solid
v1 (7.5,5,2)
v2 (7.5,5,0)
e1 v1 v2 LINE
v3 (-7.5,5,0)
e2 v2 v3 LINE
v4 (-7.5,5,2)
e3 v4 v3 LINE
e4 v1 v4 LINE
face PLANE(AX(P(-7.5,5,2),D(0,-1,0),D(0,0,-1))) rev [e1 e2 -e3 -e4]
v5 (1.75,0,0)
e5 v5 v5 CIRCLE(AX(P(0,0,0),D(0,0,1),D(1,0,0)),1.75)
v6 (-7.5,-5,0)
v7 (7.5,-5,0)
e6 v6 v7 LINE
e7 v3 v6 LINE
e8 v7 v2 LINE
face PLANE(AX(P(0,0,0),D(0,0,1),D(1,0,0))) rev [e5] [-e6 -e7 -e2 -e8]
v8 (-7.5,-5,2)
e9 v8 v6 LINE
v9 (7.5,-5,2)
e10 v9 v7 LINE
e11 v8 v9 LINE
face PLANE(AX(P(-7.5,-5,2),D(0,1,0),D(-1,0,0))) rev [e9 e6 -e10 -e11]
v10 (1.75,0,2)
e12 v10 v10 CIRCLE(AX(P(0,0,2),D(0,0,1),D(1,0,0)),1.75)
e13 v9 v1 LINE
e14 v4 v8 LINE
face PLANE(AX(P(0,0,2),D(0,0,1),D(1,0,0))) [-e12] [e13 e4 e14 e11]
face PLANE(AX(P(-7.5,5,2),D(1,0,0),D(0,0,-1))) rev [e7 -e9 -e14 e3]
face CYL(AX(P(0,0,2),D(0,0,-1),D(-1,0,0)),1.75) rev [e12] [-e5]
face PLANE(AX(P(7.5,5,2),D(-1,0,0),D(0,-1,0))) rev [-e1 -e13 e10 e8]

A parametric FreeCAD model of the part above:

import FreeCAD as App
import Part
import Sketcher
Q = App.Units.Quantity

doc = App.newDocument("Part")
body = doc.addObject("PartDesign::Body", "Body")

# Sketch on XY plane
sketch1 = body.newObject("Sketcher::SketchObject", "Sketch")
sketch1.AttachmentSupport = (doc.getObject("XY_Plane"), [""])
sketch1.MapMode = "FlatFace"
sketch1.addGeometry([
    Part.LineSegment(App.Vector(-7.5, 5, 0), App.Vector(-7.5, -5, 0)),  # 0
    Part.LineSegment(App.Vector(-7.5, -5, 0), App.Vector(7.5, -5, 0)),  # 1
    Part.LineSegment(App.Vector(7.5, -5, 0), App.Vector(7.5, 5, 0)),  # 2
    Part.LineSegment(App.Vector(7.5, 5, 0), App.Vector(-7.5, 5, 0)),  # 3
    Part.Circle(App.Vector(0, 0, 0), App.Vector(0, 0, 1), 1.75),  # 4
], False)
sketch1.addConstraint([
    Sketcher.Constraint("Coincident", 0, 2, 1, 1),
    Sketcher.Constraint("Coincident", 1, 2, 2, 1),
    Sketcher.Constraint("Coincident", 2, 2, 3, 1),
    Sketcher.Constraint("Coincident", 3, 2, 0, 1),
    Sketcher.Constraint("Vertical", 0),
    Sketcher.Constraint("Horizontal", 1),
    Sketcher.Constraint("Vertical", 2),
    Sketcher.Constraint("Horizontal", 3),
    Sketcher.Constraint("Coincident", 4, 3, -1, 1),
    Sketcher.Constraint("Symmetric", 0, 2, 2, 2, -1, 1),
    Sketcher.Constraint("Diameter", 4, Q("3.5 mm")),
    Sketcher.Constraint("DistanceX", 1, 1, 1, 2, Q("15 mm")),
    Sketcher.Constraint("DistanceY", 0, 2, 0, 1, Q("10 mm")),
])
pad1 = body.newObject("PartDesign::Pad", "Pad")
pad1.Profile = sketch1
pad1.Length = 2

doc.recompute()
